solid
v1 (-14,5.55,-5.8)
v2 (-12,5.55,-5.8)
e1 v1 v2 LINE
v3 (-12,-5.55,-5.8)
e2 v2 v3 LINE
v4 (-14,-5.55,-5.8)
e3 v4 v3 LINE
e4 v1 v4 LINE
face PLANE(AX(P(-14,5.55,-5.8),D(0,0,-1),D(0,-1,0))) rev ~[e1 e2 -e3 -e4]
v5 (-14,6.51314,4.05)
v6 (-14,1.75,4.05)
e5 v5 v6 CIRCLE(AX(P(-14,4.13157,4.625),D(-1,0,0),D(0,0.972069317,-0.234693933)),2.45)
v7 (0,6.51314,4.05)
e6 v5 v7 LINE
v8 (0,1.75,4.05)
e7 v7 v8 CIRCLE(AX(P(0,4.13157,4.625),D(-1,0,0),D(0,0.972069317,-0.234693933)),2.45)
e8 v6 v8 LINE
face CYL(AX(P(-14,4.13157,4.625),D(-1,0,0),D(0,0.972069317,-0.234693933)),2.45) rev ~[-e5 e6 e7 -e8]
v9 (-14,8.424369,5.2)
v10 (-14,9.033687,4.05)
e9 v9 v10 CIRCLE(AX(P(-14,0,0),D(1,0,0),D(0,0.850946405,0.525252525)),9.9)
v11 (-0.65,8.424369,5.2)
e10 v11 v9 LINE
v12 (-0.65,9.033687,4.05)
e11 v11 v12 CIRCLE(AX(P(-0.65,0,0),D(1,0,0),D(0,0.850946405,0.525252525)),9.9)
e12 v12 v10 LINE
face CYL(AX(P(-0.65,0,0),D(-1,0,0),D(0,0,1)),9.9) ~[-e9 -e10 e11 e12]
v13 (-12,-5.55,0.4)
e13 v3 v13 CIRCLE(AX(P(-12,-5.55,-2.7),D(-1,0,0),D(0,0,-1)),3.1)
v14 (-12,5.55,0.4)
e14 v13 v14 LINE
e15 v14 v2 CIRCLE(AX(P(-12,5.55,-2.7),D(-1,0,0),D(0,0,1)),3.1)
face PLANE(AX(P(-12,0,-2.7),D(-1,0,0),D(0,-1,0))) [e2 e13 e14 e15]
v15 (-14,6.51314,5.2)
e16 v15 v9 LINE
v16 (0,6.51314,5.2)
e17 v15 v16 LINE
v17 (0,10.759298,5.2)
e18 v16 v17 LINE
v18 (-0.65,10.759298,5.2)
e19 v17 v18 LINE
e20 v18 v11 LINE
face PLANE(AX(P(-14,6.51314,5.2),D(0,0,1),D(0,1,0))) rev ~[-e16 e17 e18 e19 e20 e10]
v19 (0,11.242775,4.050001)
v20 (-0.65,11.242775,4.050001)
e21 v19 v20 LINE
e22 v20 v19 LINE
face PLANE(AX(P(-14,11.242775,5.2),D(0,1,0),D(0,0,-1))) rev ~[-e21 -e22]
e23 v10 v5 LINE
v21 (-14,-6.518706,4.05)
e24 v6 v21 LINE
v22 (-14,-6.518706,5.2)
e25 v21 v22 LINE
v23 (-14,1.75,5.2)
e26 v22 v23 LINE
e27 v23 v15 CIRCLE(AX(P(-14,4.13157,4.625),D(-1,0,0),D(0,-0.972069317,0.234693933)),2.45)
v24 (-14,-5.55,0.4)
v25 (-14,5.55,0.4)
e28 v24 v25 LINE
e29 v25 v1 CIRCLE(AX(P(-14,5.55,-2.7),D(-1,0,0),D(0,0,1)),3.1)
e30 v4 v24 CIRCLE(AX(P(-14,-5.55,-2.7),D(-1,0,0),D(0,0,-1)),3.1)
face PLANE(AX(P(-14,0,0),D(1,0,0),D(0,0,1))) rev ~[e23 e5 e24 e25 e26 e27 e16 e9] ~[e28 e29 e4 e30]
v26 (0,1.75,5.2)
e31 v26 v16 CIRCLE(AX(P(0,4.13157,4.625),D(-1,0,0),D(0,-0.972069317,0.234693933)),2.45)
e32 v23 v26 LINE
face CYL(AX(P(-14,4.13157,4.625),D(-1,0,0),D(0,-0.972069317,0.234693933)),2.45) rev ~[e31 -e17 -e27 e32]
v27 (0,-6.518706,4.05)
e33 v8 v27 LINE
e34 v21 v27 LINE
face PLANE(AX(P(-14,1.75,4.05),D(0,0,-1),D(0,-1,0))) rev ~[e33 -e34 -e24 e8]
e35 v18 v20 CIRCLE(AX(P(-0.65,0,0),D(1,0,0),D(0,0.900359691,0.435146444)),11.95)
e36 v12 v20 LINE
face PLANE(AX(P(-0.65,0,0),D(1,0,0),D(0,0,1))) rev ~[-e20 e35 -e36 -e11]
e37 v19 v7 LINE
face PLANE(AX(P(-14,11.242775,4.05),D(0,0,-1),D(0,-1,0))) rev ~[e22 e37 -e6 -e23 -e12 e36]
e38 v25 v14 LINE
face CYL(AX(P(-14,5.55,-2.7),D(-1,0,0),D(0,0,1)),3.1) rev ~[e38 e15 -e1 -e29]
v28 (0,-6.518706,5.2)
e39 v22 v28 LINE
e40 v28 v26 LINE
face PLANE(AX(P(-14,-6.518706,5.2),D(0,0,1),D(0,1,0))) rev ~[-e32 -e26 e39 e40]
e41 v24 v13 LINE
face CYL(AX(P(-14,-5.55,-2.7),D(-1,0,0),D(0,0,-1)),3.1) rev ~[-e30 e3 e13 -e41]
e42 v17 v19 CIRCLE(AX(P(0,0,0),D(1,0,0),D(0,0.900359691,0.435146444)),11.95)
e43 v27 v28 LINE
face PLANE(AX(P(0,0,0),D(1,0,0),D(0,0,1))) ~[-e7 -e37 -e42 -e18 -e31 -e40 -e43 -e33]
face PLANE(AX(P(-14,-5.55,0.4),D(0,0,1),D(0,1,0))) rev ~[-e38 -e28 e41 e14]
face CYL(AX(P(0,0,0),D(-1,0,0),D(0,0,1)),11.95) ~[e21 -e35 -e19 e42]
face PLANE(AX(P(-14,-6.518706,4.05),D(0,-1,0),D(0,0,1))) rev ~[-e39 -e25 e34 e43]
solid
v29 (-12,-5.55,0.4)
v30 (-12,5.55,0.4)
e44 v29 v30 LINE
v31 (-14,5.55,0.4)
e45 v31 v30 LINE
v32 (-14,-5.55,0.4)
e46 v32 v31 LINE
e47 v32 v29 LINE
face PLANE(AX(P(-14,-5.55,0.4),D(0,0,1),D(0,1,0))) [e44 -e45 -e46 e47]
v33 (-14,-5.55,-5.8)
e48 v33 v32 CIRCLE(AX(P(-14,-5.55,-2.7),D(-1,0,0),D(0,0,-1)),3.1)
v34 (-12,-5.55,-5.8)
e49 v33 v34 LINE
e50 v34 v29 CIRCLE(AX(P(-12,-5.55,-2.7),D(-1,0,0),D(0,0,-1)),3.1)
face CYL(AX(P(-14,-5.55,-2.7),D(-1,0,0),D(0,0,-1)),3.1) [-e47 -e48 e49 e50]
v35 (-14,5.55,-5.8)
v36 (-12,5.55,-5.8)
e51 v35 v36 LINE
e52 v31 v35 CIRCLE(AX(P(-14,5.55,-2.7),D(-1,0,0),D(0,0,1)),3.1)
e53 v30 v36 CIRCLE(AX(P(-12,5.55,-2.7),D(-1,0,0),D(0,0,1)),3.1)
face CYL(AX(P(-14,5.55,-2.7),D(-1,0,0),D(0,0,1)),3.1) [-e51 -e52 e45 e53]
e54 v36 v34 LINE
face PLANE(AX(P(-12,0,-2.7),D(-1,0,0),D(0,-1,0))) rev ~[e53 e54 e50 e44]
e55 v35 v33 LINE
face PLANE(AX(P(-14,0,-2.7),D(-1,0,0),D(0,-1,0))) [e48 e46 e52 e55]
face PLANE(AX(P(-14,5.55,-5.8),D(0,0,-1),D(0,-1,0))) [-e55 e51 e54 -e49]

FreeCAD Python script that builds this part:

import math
import FreeCAD as App
import Part
import Sketcher
from FreeCAD import Vector


def add_polygon(sketch, points):
    """Adds a closed chain of lines whose ends are joined by coincident constraints."""
    first, n = sketch.GeometryCount, len(points)
    for a, b in zip(points, points[1:] + points[:1]):
        sketch.addGeometry(Part.LineSegment(App.Vector(*a, 0), App.Vector(*b, 0)), False)
    for i in range(n):
        sketch.addConstraint(Sketcher.Constraint("Coincident", first + i, 2, first + (i + 1) % n, 1))

doc = App.newDocument("Part")
body = doc.addObject("PartDesign::Body", "Body")

sketch1 = body.newObject("Sketcher::SketchObject", "Sketch")
sketch1.AttachmentSupport = (doc.getObject("XZ_Plane"), [""])
sketch1.MapMode = "FlatFace"
add_polygon(sketch1, [(-14, 0), (0, 0), (0, 11.95), (-0.65, 11.95), (-0.65, 9.9), (-14, 9.9)])
sketch1.addConstraint([
    Sketcher.Constraint("Horizontal", 0),
    Sketcher.Constraint("Vertical", 1),
    Sketcher.Constraint("Horizontal", 2),
    Sketcher.Constraint("Vertical", 3),
    Sketcher.Constraint("Horizontal", 4),
    Sketcher.Constraint("Vertical", 5),
    Sketcher.Constraint("Coincident", 0, 2, -1, 1),
    Sketcher.Constraint("DistanceX", 0, 1, 0, 2, 14.0),
    Sketcher.Constraint("DistanceY", 5, 2, 5, 1, 9.9),
    Sketcher.Constraint("DistanceX", 2, 2, 2, 1, 0.65),
    Sketcher.Constraint("DistanceY", 1, 1, 1, 2, 11.95),
])
revolution = body.newObject("PartDesign::Revolution", "Revolution")
revolution.Profile = sketch1
revolution.ReferenceAxis = (sketch1, ["H_Axis"])
revolution.Angle = 360

sketch2 = body.newObject("Sketcher::SketchObject", "Sketch001")
sketch2.AttachmentSupport = (doc.getObject("YZ_Plane"), [""])
sketch2.MapMode = "FlatFace"
sketch2.AttachmentOffset = App.Placement(Vector(0, 0, -14), App.Rotation())
sketch2.addGeometry([
    Part.LineSegment(Vector(-6.518706, 5.2, 0), Vector(1.75, 5.2, 0)),
    Part.ArcOfCircle(Part.Circle(Vector(4.13157, 4.625, 0), Vector(0, 0, 1), 2.45), math.radians(13.573582), math.radians(166.426418)),
    Part.LineSegment(Vector(6.51314, 5.2, 0), Vector(11.242775, 5.2, 0)),
    Part.LineSegment(Vector(11.242775, 5.2, 0), Vector(11.242775, 4.05, 0)),
    Part.LineSegment(Vector(11.242775, 4.05, 0), Vector(6.51314, 4.05, 0)),
    Part.ArcOfCircle(Part.Circle(Vector(4.13157, 4.625, 0), Vector(0, 0, 1), 2.45), math.radians(-166.426418), math.radians(-13.573582)),
    Part.LineSegment(Vector(1.75, 4.05, 0), Vector(-6.518706, 4.05, 0)),
    Part.LineSegment(Vector(-6.518706, 4.05, 0), Vector(-6.518706, 5.2, 0)),
], False)
sketch2.addConstraint([
    Sketcher.Constraint("Coincident", 0, 2, 1, 2),
    Sketcher.Constraint("Coincident", 1, 1, 2, 1),
    Sketcher.Constraint("Coincident", 2, 2, 3, 1),
    Sketcher.Constraint("Coincident", 3, 2, 4, 1),
    Sketcher.Constraint("Coincident", 4, 2, 5, 2),
    Sketcher.Constraint("Coincident", 5, 1, 6, 1),
    Sketcher.Constraint("Coincident", 6, 2, 7, 1),
    Sketcher.Constraint("Coincident", 7, 2, 0, 1),
    Sketcher.Constraint("Horizontal", 0),
    Sketcher.Constraint("Horizontal", 2),
    Sketcher.Constraint("Vertical", 3),
    Sketcher.Constraint("Horizontal", 4),
    Sketcher.Constraint("Horizontal", 6),
    Sketcher.Constraint("Vertical", 7),
    Sketcher.Constraint("Coincident", 5, 3, 1, 3),
    Sketcher.Constraint("Equal", 1, 5),
    Sketcher.Constraint("Horizontal", 0, 2, 1, 1),
    Sketcher.Constraint("Horizontal", 4, 2, 5, 1),
    Sketcher.Constraint("Vertical", 1, 1, 4, 2),
    Sketcher.Constraint("Radius", 1, 2.45),
    Sketcher.Constraint("DistanceY", 3, 2, 3, 1, 1.15),
    Sketcher.Constraint("DistanceY", -1, 1, 0, 2, 5.2),
    Sketcher.Constraint("DistanceX", -1, 1, 0, 2, 1.75),
    Sketcher.Constraint("DistanceX", 0, 1, 0, 2, 8.268706),
    Sketcher.Constraint("DistanceX", 2, 1, 2, 2, 4.729635),
])
pocket1 = body.newObject("PartDesign::Pocket", "Pocket")
pocket1.Profile = sketch2
pocket1.Type = "ThroughAll"
pocket1.Reversed = True

sketch3 = body.newObject("Sketcher::SketchObject", "Sketch002")
sketch3.AttachmentSupport = (doc.getObject("YZ_Plane"), [""])
sketch3.MapMode = "FlatFace"
sketch3.AttachmentOffset = App.Placement(Vector(0, 0, -14), App.Rotation())
sketch3.addGeometry([
    Part.LineSegment(Vector(-6.518706, 5.2, 0), Vector(1.75, 5.2, 0)),
    Part.ArcOfCircle(Part.Circle(Vector(4.13157, 4.625, 0), Vector(0, 0, 1), 2.45), math.radians(13.573582), math.radians(166.426418)),
    Part.LineSegment(Vector(6.51314, 5.2, 0), Vector(11.242775, 5.2, 0)),
    Part.LineSegment(Vector(11.242775, 5.2, 0), Vector(11.242775, 4.05, 0)),
    Part.LineSegment(Vector(11.242775, 4.05, 0), Vector(6.51314, 4.05, 0)),
    Part.ArcOfCircle(Part.Circle(Vector(4.13157, 4.625, 0), Vector(0, 0, 1), 2.45), math.radians(-166.426418), math.radians(-13.573582)),
    Part.LineSegment(Vector(1.75, 4.05, 0), Vector(-6.518706, 4.05, 0)),
    Part.LineSegment(Vector(-6.518706, 4.05, 0), Vector(-6.518706, 5.2, 0)),
], False)
sketch3.addConstraint([
    Sketcher.Constraint("Coincident", 0, 2, 1, 2),
    Sketcher.Constraint("Coincident", 1, 1, 2, 1),
    Sketcher.Constraint("Coincident", 2, 2, 3, 1),
    Sketcher.Constraint("Coincident", 3, 2, 4, 1),
    Sketcher.Constraint("Coincident", 4, 2, 5, 2),
    Sketcher.Constraint("Coincident", 5, 1, 6, 1),
    Sketcher.Constraint("Coincident", 6, 2, 7, 1),
    Sketcher.Constraint("Coincident", 7, 2, 0, 1),
    Sketcher.Constraint("Horizontal", 0),
    Sketcher.Constraint("Horizontal", 2),
    Sketcher.Constraint("Vertical", 3),
    Sketcher.Constraint("Horizontal", 4),
    Sketcher.Constraint("Horizontal", 6),
    Sketcher.Constraint("Vertical", 7),
    Sketcher.Constraint("Coincident", 5, 3, 1, 3),
    Sketcher.Constraint("Equal", 1, 5),
    Sketcher.Constraint("Horizontal", 0, 2, 1, 1),
    Sketcher.Constraint("Horizontal", 4, 2, 5, 1),
    Sketcher.Constraint("Vertical", 1, 1, 4, 2),
    Sketcher.Constraint("Radius", 1, 2.45),
    Sketcher.Constraint("DistanceY", 3, 2, 3, 1, 1.15),
    Sketcher.Constraint("DistanceY", -1, 1, 0, 2, 5.2),
    Sketcher.Constraint("DistanceX", -1, 1, 0, 2, 1.75),
    Sketcher.Constraint("DistanceX", 0, 1, 0, 2, 8.268706),
    Sketcher.Constraint("DistanceX", 2, 1, 2, 2, 4.729635),
])
pocket2 = body.newObject("PartDesign::Pocket", "Pocket001")
pocket2.Profile = sketch3
pocket2.Type = "ThroughAll"
pocket2.Reversed = True

sketch4 = body.newObject("Sketcher::SketchObject", "Sketch003")
sketch4.AttachmentSupport = (doc.getObject("YZ_Plane"), [""])
sketch4.MapMode = "FlatFace"
sketch4.AttachmentOffset = App.Placement(Vector(0, 0, -14), App.Rotation())
sketch4.addGeometry([
    Part.ArcOfCircle(Part.Circle(Vector(-5.55, -2.7, 0), Vector(0, 0, 1), 3.1), math.radians(90), math.radians(270)),
    Part.LineSegment(Vector(-5.55, 0.4, 0), Vector(5.55, 0.4, 0)),
    Part.ArcOfCircle(Part.Circle(Vector(5.55, -2.7, 0), Vector(0, 0, 1), 3.1), math.radians(-90), math.radians(90)),
    Part.LineSegment(Vector(5.55, -5.8, 0), Vector(-5.55, -5.8, 0)),
], False)
sketch4.addConstraint([
    Sketcher.Constraint("Tangent", 0, 1, 1, 1),
    Sketcher.Constraint("Tangent", 1, 2, 2, 2),
    Sketcher.Constraint("Tangent", 2, 1, 3, 1),
    Sketcher.Constraint("Tangent", 3, 2, 0, 2),
    Sketcher.Constraint("Horizontal", 1),
    Sketcher.Constraint("Horizontal", 3),
    Sketcher.Constraint("Radius", 0, 3.1),
    Sketcher.Constraint("DistanceX", 1, 1, 1, 2, 11.1),
    Sketcher.Constraint("DistanceY", 0, 3, -1, 1, 2.7),
    Sketcher.Constraint("DistanceX", 0, 3, -1, 1, 5.55),
])
pocket3 = body.newObject("PartDesign::Pocket", "Pocket002")
pocket3.Profile = sketch4
pocket3.Length = 2
pocket3.Reversed = True
body2 = doc.addObject("PartDesign::Body", "Body001")

sketch5 = body2.newObject("Sketcher::SketchObject", "Sketch004")
sketch5.AttachmentSupport = (doc.getObject("YZ_Plane001"), [""])
sketch5.MapMode = "FlatFace"
sketch5.AttachmentOffset = App.Placement(Vector(0, 0, -14), App.Rotation())
sketch5.addGeometry([
    Part.ArcOfCircle(Part.Circle(Vector(-5.55, -2.7, 0), Vector(0, 0, 1), 3.1), math.radians(90), math.radians(270)),
    Part.LineSegment(Vector(-5.55, 0.4, 0), Vector(5.55, 0.4, 0)),
    Part.ArcOfCircle(Part.Circle(Vector(5.55, -2.7, 0), Vector(0, 0, 1), 3.1), math.radians(-90), math.radians(90)),
    Part.LineSegment(Vector(5.55, -5.8, 0), Vector(-5.55, -5.8, 0)),
], False)
sketch5.addConstraint([
    Sketcher.Constraint("Tangent", 0, 1, 1, 1),
    Sketcher.Constraint("Tangent", 1, 2, 2, 2),
    Sketcher.Constraint("Tangent", 2, 1, 3, 1),
    Sketcher.Constraint("Tangent", 3, 2, 0, 2),
    Sketcher.Constraint("Horizontal", 1),
    Sketcher.Constraint("Horizontal", 3),
    Sketcher.Constraint("Radius", 0, 3.1),
    Sketcher.Constraint("DistanceX", 1, 1, 1, 2, 11.1),
    Sketcher.Constraint("DistanceY", 0, 3, -1, 1, 2.7),
    Sketcher.Constraint("DistanceX", 0, 3, -1, 1, 5.55),
])
pad1 = body2.newObject("PartDesign::Pad", "Pad")
pad1.Profile = sketch5
pad1.Length = 2

doc.recompute()
